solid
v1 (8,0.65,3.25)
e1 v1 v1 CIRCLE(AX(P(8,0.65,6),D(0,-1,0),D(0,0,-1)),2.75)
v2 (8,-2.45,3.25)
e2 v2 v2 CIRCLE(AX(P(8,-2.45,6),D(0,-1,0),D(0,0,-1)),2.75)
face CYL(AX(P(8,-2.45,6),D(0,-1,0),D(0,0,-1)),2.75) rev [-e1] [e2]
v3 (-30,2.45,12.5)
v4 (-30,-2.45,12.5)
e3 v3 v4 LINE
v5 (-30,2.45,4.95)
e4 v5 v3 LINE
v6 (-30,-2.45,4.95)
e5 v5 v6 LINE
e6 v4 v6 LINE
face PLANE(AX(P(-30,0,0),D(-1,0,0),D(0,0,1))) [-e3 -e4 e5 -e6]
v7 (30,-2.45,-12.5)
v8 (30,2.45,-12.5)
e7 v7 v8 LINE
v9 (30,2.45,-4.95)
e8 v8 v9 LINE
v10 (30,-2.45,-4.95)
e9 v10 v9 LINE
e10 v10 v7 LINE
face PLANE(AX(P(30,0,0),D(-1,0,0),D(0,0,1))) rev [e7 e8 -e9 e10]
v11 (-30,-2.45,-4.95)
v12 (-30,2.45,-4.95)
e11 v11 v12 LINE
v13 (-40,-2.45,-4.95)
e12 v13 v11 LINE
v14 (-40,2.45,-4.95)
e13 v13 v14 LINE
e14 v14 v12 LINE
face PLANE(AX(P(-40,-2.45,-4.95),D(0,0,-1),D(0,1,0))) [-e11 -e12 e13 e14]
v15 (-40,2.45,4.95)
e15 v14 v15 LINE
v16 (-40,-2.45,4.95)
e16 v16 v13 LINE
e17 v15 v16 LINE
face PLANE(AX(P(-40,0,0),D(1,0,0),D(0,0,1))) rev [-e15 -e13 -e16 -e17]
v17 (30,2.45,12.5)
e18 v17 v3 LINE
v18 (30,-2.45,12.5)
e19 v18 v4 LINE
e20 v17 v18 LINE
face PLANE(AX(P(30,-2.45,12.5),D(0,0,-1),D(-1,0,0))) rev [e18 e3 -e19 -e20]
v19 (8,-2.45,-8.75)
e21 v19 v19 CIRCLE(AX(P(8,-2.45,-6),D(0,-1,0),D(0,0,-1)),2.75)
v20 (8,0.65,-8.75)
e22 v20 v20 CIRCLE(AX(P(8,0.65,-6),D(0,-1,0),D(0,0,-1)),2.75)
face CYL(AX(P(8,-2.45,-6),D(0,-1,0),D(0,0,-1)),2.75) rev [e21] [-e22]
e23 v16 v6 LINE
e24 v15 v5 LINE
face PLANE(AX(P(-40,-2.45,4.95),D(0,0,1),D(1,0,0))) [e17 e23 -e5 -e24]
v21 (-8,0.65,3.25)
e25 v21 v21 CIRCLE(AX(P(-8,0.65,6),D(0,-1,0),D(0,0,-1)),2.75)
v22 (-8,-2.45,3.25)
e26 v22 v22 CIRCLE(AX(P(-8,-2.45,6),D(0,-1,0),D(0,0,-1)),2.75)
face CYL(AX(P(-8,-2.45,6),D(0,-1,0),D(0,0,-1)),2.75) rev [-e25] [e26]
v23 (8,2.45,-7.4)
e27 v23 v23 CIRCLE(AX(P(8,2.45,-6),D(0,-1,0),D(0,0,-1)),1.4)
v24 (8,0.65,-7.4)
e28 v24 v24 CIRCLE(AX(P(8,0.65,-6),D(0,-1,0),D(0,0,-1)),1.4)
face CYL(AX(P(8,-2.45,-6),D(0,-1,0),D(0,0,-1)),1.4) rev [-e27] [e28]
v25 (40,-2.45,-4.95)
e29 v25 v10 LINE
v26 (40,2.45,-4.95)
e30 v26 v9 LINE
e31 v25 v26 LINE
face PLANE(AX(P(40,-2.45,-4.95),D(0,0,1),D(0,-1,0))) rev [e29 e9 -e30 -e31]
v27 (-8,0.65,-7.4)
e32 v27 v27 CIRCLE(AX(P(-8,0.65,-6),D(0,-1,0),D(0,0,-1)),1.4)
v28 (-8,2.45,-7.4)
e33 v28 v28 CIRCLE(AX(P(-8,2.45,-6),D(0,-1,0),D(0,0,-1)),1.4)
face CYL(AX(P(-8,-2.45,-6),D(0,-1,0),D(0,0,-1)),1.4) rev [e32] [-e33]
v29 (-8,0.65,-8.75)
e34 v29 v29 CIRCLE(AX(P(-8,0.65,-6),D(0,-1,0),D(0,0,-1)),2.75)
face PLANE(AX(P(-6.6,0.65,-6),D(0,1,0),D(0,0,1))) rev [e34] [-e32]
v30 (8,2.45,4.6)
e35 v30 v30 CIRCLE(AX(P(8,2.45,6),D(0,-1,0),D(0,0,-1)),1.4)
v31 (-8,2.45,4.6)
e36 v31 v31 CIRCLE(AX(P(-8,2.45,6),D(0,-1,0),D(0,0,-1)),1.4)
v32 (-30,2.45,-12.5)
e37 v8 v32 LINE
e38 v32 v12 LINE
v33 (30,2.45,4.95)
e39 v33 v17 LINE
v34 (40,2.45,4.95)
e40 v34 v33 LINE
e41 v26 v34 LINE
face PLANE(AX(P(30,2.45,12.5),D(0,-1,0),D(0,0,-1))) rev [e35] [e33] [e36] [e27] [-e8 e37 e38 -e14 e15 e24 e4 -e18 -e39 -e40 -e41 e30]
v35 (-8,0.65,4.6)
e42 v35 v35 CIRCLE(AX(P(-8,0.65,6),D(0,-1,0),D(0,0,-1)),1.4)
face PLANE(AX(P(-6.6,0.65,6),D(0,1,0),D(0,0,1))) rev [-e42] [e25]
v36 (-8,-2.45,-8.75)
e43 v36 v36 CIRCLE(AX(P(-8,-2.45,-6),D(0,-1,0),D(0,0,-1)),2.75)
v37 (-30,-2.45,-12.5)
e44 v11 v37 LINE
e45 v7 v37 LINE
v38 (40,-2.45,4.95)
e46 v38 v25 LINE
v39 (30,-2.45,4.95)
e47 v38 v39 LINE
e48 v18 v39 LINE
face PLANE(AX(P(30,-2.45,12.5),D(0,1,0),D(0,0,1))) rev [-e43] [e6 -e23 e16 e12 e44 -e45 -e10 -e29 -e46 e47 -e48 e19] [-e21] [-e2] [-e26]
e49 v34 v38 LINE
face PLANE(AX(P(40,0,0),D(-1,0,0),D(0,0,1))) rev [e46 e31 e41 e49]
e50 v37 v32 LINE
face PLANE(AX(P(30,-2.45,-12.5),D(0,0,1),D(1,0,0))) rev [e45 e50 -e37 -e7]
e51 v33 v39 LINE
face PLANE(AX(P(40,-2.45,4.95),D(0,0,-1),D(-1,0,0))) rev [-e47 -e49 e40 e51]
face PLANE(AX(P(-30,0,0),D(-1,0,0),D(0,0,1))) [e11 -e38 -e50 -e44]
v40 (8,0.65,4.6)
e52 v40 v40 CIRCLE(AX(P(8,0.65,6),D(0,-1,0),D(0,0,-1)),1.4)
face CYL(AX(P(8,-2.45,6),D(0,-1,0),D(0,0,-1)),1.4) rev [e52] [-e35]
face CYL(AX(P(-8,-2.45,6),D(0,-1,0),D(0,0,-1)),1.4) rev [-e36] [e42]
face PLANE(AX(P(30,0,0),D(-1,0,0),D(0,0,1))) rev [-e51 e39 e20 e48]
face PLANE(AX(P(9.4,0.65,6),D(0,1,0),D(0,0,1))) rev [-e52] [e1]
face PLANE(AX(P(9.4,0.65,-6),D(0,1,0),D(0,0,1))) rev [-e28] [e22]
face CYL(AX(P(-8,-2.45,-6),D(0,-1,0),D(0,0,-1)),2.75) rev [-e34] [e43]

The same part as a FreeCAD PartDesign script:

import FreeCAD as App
import Part
import Sketcher
from FreeCAD import Vector

doc = App.newDocument("Part")
body = doc.addObject("PartDesign::Body", "Body")

# Sketch on YZ plane
sketch1 = body.newObject("Sketcher::SketchObject", "Sketch")
sketch1.AttachmentSupport = (doc.getObject("YZ_Plane"), [""])
sketch1.MapMode = "FlatFace"
sketch1.addGeometry(Part.LineSegment(Vector(2.5, 12.5, 0), Vector(-2.5, 12.5, 0)), False)
sketch1.addGeometry(Part.LineSegment(Vector(-2.5, 12.5, 0), Vector(-2.5, -12.5, 0)), False)
sketch1.addGeometry(Part.LineSegment(Vector(-2.5, -12.5, 0), Vector(2.5, -12.5, 0)), False)
sketch1.addGeometry(Part.LineSegment(Vector(2.5, -12.5, 0), Vector(2.5, 12.5, 0)), False)
sketch1.addConstraint(Sketcher.Constraint("Coincident", 0, 2, 1, 1))
sketch1.addConstraint(Sketcher.Constraint("Coincident", 1, 2, 2, 1))
sketch1.addConstraint(Sketcher.Constraint("Coincident", 2, 2, 3, 1))
sketch1.addConstraint(Sketcher.Constraint("Coincident", 3, 2, 0, 1))
sketch1.addConstraint(Sketcher.Constraint("Horizontal", 0))
sketch1.addConstraint(Sketcher.Constraint("Vertical", 1))
sketch1.addConstraint(Sketcher.Constraint("Horizontal", 2))
sketch1.addConstraint(Sketcher.Constraint("Vertical", 3))
sketch1.addConstraint(Sketcher.Constraint("Symmetric", 0, 2, 2, 2, -1, 1))
sketch1.addConstraint(Sketcher.Constraint("DistanceY", 1, 2, 1, 1, 25.0))
sketch1.addConstraint(Sketcher.Constraint("DistanceX", 0, 2, 0, 1, 4.9))
pad1 = body.newObject("PartDesign::Pad", "Pad")
pad1.Profile = sketch1
pad1.Length = 60
pad1.Midplane = True

# Sketch on YZ plane
sketch2 = body.newObject("Sketcher::SketchObject", "Sketch001")
sketch2.AttachmentSupport = (doc.getObject("YZ_Plane"), [""])
sketch2.MapMode = "FlatFace"
sketch2.AttachmentOffset = App.Placement(Vector(0, 0, 30), App.Rotation())
sketch2.addGeometry(Part.LineSegment(Vector(2.5, 5, 0), Vector(-2.5, 5, 0)), False)
sketch2.addGeometry(Part.LineSegment(Vector(-2.5, 5, 0), Vector(-2.5, -5, 0)), False)
sketch2.addGeometry(Part.LineSegment(Vector(-2.5, -5, 0), Vector(2.5, -5, 0)), False)
sketch2.addGeometry(Part.LineSegment(Vector(2.5, -5, 0), Vector(2.5, 5, 0)), False)
sketch2.addConstraint(Sketcher.Constraint("Coincident", 0, 2, 1, 1))
sketch2.addConstraint(Sketcher.Constraint("Coincident", 1, 2, 2, 1))
sketch2.addConstraint(Sketcher.Constraint("Coincident", 2, 2, 3, 1))
sketch2.addConstraint(Sketcher.Constraint("Coincident", 3, 2, 0, 1))
sketch2.addConstraint(Sketcher.Constraint("Horizontal", 0))
sketch2.addConstraint(Sketcher.Constraint("Vertical", 1))
sketch2.addConstraint(Sketcher.Constraint("Horizontal", 2))
sketch2.addConstraint(Sketcher.Constraint("Vertical", 3))
sketch2.addConstraint(Sketcher.Constraint("Symmetric", 0, 2, 2, 2, -1, 1))
sketch2.addConstraint(Sketcher.Constraint("DistanceX", 0, 2, 0, 1, 4.9))
sketch2.addConstraint(Sketcher.Constraint("DistanceY", 1, 2, 1, 1, 9.9))
pad2 = body.newObject("PartDesign::Pad", "Pad001")
pad2.Profile = sketch2
pad2.Length = 10
doc.recompute()

mirrored = body.newObject("PartDesign::Mirrored", "Mirrored")
mirrored.Originals = [pad2]
mirrored.MirrorPlane = (doc.getObject("YZ_Plane"), [""])
body.Tip = mirrored

# Sketch on XZ plane
sketch3 = body.newObject("Sketcher::SketchObject", "Sketch002")
sketch3.AttachmentSupport = (doc.getObject("XZ_Plane"), [""])
sketch3.MapMode = "FlatFace"
sketch3.AttachmentOffset = App.Placement(Vector(0, 0, 2.45), App.Rotation())
sketch3.addGeometry(Part.Circle(Vector(8, -6, 0), Vector(0, 0, 1), 1.4), False)
sketch3.addGeometry(Part.Circle(Vector(-8, -6, 0), Vector(0, 0, 1), 1.4), False)
sketch3.addGeometry(Part.Circle(Vector(-8, 6, 0), Vector(0, 0, 1), 1.4), False)
sketch3.addGeometry(Part.Circle(Vector(8, 6, 0), Vector(0, 0, 1), 1.4), False)
sketch3.addConstraint(Sketcher.Constraint("Equal", 0, 1))
sketch3.addConstraint(Sketcher.Constraint("Equal", 1, 2))
sketch3.addConstraint(Sketcher.Constraint("Equal", 2, 3))
sketch3.addConstraint(Sketcher.Constraint("Symmetric", 0, 3, 2, 3, -1, 1))
sketch3.addConstraint(Sketcher.Constraint("Symmetric", 1, 3, 3, 3, -1, 1))
sketch3.addConstraint(Sketcher.Constraint("Symmetric", 0, 3, 1, 3, -2))
sketch3.addConstraint(Sketcher.Constraint("Diameter", 0, 2.8))
sketch3.addConstraint(Sketcher.Constraint("DistanceX", -1, 1, 0, 3, 8.0))
sketch3.addConstraint(Sketcher.Constraint("DistanceY", 0, 3, -1, 1, 6.0))
doc.recompute()
hole = body.newObject("PartDesign::Hole", "Hole")
hole.Profile = sketch3
hole.ThreadType = "None"
hole.Diameter = 2.8
hole.DepthType = "ThroughAll"
hole.HoleCutType = "Counterbore"
hole.HoleCutDiameter = 5.5
hole.HoleCutDepth = 3.1

doc.recompute()
